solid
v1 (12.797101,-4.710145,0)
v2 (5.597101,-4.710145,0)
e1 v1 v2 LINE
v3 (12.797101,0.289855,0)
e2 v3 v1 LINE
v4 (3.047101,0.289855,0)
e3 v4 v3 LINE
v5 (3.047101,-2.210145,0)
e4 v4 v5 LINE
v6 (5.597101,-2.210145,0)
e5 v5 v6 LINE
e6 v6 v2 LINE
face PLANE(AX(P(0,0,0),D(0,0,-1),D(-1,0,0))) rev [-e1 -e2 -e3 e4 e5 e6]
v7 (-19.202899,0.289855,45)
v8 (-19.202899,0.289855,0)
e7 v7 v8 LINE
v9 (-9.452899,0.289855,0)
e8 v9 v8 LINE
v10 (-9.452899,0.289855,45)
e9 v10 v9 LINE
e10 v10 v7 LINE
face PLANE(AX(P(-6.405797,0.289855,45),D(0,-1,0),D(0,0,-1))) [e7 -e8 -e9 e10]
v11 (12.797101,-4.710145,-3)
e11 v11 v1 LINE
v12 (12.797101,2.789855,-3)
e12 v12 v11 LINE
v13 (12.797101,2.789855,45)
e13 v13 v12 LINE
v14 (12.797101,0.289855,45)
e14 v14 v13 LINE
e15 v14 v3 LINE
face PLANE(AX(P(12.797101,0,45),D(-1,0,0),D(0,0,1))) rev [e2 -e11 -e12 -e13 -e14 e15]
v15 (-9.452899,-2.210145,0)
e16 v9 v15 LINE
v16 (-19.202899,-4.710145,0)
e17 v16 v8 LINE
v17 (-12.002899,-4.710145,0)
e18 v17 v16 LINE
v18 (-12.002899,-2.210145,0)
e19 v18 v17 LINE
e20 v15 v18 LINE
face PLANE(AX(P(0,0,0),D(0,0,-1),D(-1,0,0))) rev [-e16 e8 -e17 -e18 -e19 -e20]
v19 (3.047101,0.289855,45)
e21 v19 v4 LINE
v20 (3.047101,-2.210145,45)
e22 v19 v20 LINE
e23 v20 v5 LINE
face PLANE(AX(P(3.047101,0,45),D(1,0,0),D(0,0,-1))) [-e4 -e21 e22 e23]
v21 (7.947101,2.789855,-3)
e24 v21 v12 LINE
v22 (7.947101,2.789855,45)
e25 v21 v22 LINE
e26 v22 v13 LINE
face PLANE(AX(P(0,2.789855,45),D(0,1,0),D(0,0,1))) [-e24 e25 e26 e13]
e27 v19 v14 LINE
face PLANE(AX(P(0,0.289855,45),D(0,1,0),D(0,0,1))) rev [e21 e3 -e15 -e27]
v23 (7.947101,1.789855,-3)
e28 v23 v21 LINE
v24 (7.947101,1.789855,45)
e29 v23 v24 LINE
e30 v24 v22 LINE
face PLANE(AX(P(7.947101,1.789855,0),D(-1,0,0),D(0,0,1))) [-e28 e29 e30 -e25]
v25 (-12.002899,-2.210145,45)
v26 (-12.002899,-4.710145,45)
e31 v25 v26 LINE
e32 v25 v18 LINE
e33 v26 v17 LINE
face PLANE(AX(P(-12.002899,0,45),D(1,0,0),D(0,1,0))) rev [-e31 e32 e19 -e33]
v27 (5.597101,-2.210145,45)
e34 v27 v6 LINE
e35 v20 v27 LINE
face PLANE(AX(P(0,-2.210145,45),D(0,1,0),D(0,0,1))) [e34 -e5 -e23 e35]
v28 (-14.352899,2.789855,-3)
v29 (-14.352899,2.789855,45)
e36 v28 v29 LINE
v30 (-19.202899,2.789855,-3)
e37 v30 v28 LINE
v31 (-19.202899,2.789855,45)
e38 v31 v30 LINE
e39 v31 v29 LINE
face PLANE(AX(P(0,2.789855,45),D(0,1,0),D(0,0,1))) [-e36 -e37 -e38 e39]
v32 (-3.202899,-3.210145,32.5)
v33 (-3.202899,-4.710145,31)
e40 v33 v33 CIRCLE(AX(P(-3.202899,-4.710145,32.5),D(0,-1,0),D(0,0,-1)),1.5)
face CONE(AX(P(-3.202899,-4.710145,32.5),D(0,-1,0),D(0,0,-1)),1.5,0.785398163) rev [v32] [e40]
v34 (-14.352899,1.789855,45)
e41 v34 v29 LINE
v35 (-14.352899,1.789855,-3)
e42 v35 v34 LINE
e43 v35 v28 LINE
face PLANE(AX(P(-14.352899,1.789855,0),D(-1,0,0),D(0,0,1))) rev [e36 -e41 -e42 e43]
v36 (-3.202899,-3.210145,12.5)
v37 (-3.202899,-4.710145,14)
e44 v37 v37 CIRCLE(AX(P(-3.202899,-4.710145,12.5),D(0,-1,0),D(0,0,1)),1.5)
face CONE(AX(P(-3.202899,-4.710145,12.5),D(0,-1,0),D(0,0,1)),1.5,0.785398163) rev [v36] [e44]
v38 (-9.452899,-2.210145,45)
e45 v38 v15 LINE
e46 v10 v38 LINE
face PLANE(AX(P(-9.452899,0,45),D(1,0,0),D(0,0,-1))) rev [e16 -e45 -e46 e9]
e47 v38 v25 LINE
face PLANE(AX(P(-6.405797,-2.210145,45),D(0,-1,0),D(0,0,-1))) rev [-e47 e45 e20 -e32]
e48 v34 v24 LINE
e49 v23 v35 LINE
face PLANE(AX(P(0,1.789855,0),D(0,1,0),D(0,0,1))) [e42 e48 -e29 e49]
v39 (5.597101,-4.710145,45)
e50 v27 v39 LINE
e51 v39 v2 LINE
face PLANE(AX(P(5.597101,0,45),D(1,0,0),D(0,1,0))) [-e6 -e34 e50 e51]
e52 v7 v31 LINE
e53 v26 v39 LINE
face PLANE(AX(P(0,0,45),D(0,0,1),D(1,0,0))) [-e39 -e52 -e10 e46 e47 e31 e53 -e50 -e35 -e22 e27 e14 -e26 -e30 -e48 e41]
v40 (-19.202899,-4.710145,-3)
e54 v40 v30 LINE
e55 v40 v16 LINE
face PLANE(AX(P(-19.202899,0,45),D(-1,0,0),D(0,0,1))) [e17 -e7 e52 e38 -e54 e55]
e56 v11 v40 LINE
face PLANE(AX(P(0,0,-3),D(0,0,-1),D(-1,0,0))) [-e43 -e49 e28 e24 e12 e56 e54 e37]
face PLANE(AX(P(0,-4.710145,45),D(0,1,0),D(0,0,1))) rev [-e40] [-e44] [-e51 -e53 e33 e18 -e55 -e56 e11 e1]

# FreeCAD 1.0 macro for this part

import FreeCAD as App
import Part
import Sketcher

V = App.Vector

doc = App.newDocument("Part")
body = doc.addObject("PartDesign::Body", "Body")

sketch1 = doc.addObject("Sketcher::SketchObject", "Sketch")
body.addObject(sketch1)
sketch1.AttachmentSupport = (doc.XY_Plane, [""])
sketch1.MapMode = "FlatFace"
sketch1.addGeometry([
    Part.LineSegment(V(-3.2, 2.8, 0), V(-3.2, -4.7, 0)),
    Part.LineSegment(V(-3.2, -4.7, 0), V(5.6, -4.7, 0)),
    Part.LineSegment(V(5.6, -4.7, 0), V(5.6, -2.2, 0)),
    Part.LineSegment(V(5.6, -2.2, 0), V(3, -2.2, 0)),
    Part.LineSegment(V(3, -2.2, 0), V(3, 0.3, 0)),
    Part.LineSegment(V(3, 0.3, 0), V(12.8, 0.3, 0)),
    Part.LineSegment(V(12.8, 0.3, 0), V(12.8, 2.8, 0)),
    Part.LineSegment(V(12.8, 2.8, 0), V(-3.2, 2.8, 0)),
], False)
sketch1.addConstraint([
    Sketcher.Constraint("Coincident", 0, 2, 1, 1),
    Sketcher.Constraint("Coincident", 1, 2, 2, 1),
    Sketcher.Constraint("Coincident", 2, 2, 3, 1),
    Sketcher.Constraint("Coincident", 3, 2, 4, 1),
    Sketcher.Constraint("Coincident", 4, 2, 5, 1),
    Sketcher.Constraint("Coincident", 5, 2, 6, 1),
    Sketcher.Constraint("Coincident", 6, 2, 7, 1),
    Sketcher.Constraint("Coincident", 7, 2, 0, 1),
    Sketcher.Constraint("Vertical", 0),
    Sketcher.Constraint("Horizontal", 1),
    Sketcher.Constraint("Vertical", 2),
    Sketcher.Constraint("Horizontal", 3),
    Sketcher.Constraint("Vertical", 4),
    Sketcher.Constraint("Horizontal", 5),
    Sketcher.Constraint("Vertical", 6),
    Sketcher.Constraint("Horizontal", 7),
    Sketcher.Constraint("Equal", 2, 4),
    Sketcher.Constraint("Equal", 4, 6),
    Sketcher.Constraint("DistanceX", 7, 2, 7, 1, 16.0),
    Sketcher.Constraint("DistanceX", 1, 1, 1, 2, 8.8),
    Sketcher.Constraint("DistanceY", 0, 2, 0, 1, 7.5),
    Sketcher.Constraint("DistanceX", 3, 2, 3, 1, 2.55),
    Sketcher.Constraint("DistanceX", 0, 2, -1, 1, 3.202899),
    Sketcher.Constraint("DistanceY", 0, 2, -1, 1, 4.710145),
])
pad1 = doc.addObject("PartDesign::Pad", "Pad")
body.addObject(pad1)
pad1.Profile = sketch1
pad1.Length = 45
doc.recompute()

datumplane = doc.addObject("PartDesign::Plane", "DatumPlane")
body.addObject(datumplane)
datumplane.AttachmentSupport = (doc.YZ_Plane, [""])
datumplane.MapMode = "FlatFace"
datumplane.AttachmentOffset = App.Placement(V(0, 0, -3.202899), App.Rotation())
mirrored = doc.addObject("PartDesign::Mirrored", "Mirrored")
body.addObject(mirrored)
mirrored.Originals = [pad1]
mirrored.MirrorPlane = (datumplane, [""])
body.Tip = mirrored

sketch2 = doc.addObject("Sketcher::SketchObject", "Sketch001")
body.addObject(sketch2)
sketch2.AttachmentSupport = (doc.YZ_Plane, [""])
sketch2.MapMode = "FlatFace"
sketch2.AttachmentOffset = App.Placement(V(0, 0, -3.202899), App.Rotation())
sketch2.addGeometry([
    Part.LineSegment(V(-4.7, 32.5, 0), V(-4.7, 31, 0)),
    Part.LineSegment(V(-4.7, 31, 0), V(-3.2, 32.5, 0)),
    Part.LineSegment(V(-3.2, 32.5, 0), V(-4.7, 32.5, 0)),
], False)
sketch2.addGeometry(Part.LineSegment(V(-4.7, 32.5, 0), V(-3.2, 32.5, 0)), True)
sketch2.addConstraint([
    Sketcher.Constraint("Coincident", 0, 2, 1, 1),
    Sketcher.Constraint("Coincident", 1, 2, 2, 1),
    Sketcher.Constraint("Coincident", 2, 2, 0, 1),
    Sketcher.Constraint("Vertical", 0),
    Sketcher.Constraint("Horizontal", 2),
    Sketcher.Constraint("Horizontal", 3),
    Sketcher.Constraint("Coincident", 3, 1, 2, 2),
    Sketcher.Constraint("Equal", 2, 3),
    Sketcher.Constraint("Equal", 3, 0),
    Sketcher.Constraint("DistanceX", 2, 2, 2, 1, 1.5),
    Sketcher.Constraint("DistanceY", -1, 1, 0, 2, 31.0),
    Sketcher.Constraint("DistanceX", 0, 2, -1, 1, 4.710145),
])
groove = doc.addObject("PartDesign::Groove", "Groove")
body.addObject(groove)
groove.Profile = sketch2
groove.ReferenceAxis = (sketch2, ["Axis0"])
groove.Angle = 360

sketch3 = doc.addObject("Sketcher::SketchObject", "Sketch002")
body.addObject(sketch3)
sketch3.AttachmentSupport = (doc.YZ_Plane, [""])
sketch3.MapMode = "FlatFace"
sketch3.AttachmentOffset = App.Placement(V(0, 0, -3.202899), App.Rotation())
sketch3.addGeometry([
    Part.LineSegment(V(-4.7, 12.5, 0), V(-4.7, 11, 0)),
    Part.LineSegment(V(-4.7, 11, 0), V(-3.2, 12.5, 0)),
    Part.LineSegment(V(-3.2, 12.5, 0), V(-4.7, 12.5, 0)),
], False)
sketch3.addGeometry(Part.LineSegment(V(-4.7, 12.5, 0), V(-3.2, 12.5, 0)), True)
sketch3.addConstraint([
    Sketcher.Constraint("Coincident", 0, 2, 1, 1),
    Sketcher.Constraint("Coincident", 1, 2, 2, 1),
    Sketcher.Constraint("Coincident", 2, 2, 0, 1),
    Sketcher.Constraint("Vertical", 0),
    Sketcher.Constraint("Horizontal", 2),
    Sketcher.Constraint("Horizontal", 3),
    Sketcher.Constraint("Coincident", 3, 1, 2, 2),
    Sketcher.Constraint("Equal", 2, 3),
    Sketcher.Constraint("Equal", 3, 0),
    Sketcher.Constraint("DistanceX", 2, 2, 2, 1, 1.5),
    Sketcher.Constraint("DistanceY", -1, 1, 0, 2, 11.0),
    Sketcher.Constraint("DistanceX", 0, 2, -1, 1, 4.710145),
])
groove2 = doc.addObject("PartDesign::Groove", "Groove001")
body.addObject(groove2)
groove2.Profile = sketch3
groove2.ReferenceAxis = (sketch3, ["Axis0"])
groove2.Angle = 360

sketch4 = doc.addObject("Sketcher::SketchObject", "Sketch003")
body.addObject(sketch4)
sketch4.AttachmentSupport = (doc.XY_Plane, [""])
sketch4.MapMode = "FlatFace"
sketch4.addGeometry([
    Part.LineSegment(V(13, 3, 0), V(13, -5, 0)),
    Part.LineSegment(V(13, -5, 0), V(-19, -5, 0)),
    Part.LineSegment(V(-19, -5, 0), V(-19, 3, 0)),
    Part.LineSegment(V(-19, 3, 0), V(13, 3, 0)),
], False)
sketch4.addConstraint([
    Sketcher.Constraint("Coincident", 0, 2, 1, 1),
    Sketcher.Constraint("Coincident", 1, 2, 2, 1),
    Sketcher.Constraint("Coincident", 2, 2, 3, 1),
    Sketcher.Constraint("Coincident", 3, 2, 0, 1),
    Sketcher.Constraint("Vertical", 0),
    Sketcher.Constraint("Horizontal", 1),
    Sketcher.Constraint("Vertical", 2),
    Sketcher.Constraint("Horizontal", 3),
    Sketcher.Constraint("DistanceX", 1, 2, 1, 1, 32.0),
    Sketcher.Constraint("DistanceY", 0, 2, 0, 1, 7.5),
    Sketcher.Constraint("DistanceX", -1, 1, 0, 2, 12.797101),
    Sketcher.Constraint("DistanceY", 0, 2, -1, 1, 4.710145),
])
pad2 = doc.addObject("PartDesign::Pad", "Pad001")
body.addObject(pad2)
pad2.Profile = sketch4
pad2.Length = 3
pad2.Reversed = True

sketch5 = doc.addObject("Sketcher::SketchObject", "Sketch004")
body.addObject(sketch5)
sketch5.AttachmentSupport = (doc.XZ_Plane, [""])
sketch5.MapMode = "FlatFace"
sketch5.AttachmentOffset = App.Placement(V(0, 0, -2.789855), App.Rotation())
sketch5.addGeometry([
    Part.LineSegment(V(-14, -3, 0), V(-14, 45, 0)),
    Part.LineSegment(V(-14, 45, 0), V(8, 45, 0)),
    Part.LineSegment(V(8, 45, 0), V(8, -3, 0)),
    Part.LineSegment(V(8, -3, 0), V(-14, -3, 0)),
], False)
sketch5.addConstraint([
    Sketcher.Constraint("Coincident", 0, 2, 1, 1),
    Sketcher.Constraint("Coincident", 1, 2, 2, 1),
    Sketcher.Constraint("Coincident", 2, 2, 3, 1),
    Sketcher.Constraint("Coincident", 3, 2, 0, 1),
    Sketcher.Constraint("Vertical", 0),
    Sketcher.Constraint("Horizontal", 1),
    Sketcher.Constraint("Vertical", 2),
    Sketcher.Constraint("Horizontal", 3),
    Sketcher.Constraint("DistanceY", 0, 1, 0, 2, 48.0),
    Sketcher.Constraint("DistanceX", 1, 1, 1, 2, 22.3),
    Sketcher.Constraint("DistanceY", -1, 1, 0, 2, 45.0),
    Sketcher.Constraint("DistanceX", 0, 2, -1, 1, 14.352899),
])
pocket1 = doc.addObject("PartDesign::Pocket", "Pocket")
body.addObject(pocket1)
pocket1.Profile = sketch5
pocket1.Length = 1
pocket1.Reversed = True

doc.recompute()
